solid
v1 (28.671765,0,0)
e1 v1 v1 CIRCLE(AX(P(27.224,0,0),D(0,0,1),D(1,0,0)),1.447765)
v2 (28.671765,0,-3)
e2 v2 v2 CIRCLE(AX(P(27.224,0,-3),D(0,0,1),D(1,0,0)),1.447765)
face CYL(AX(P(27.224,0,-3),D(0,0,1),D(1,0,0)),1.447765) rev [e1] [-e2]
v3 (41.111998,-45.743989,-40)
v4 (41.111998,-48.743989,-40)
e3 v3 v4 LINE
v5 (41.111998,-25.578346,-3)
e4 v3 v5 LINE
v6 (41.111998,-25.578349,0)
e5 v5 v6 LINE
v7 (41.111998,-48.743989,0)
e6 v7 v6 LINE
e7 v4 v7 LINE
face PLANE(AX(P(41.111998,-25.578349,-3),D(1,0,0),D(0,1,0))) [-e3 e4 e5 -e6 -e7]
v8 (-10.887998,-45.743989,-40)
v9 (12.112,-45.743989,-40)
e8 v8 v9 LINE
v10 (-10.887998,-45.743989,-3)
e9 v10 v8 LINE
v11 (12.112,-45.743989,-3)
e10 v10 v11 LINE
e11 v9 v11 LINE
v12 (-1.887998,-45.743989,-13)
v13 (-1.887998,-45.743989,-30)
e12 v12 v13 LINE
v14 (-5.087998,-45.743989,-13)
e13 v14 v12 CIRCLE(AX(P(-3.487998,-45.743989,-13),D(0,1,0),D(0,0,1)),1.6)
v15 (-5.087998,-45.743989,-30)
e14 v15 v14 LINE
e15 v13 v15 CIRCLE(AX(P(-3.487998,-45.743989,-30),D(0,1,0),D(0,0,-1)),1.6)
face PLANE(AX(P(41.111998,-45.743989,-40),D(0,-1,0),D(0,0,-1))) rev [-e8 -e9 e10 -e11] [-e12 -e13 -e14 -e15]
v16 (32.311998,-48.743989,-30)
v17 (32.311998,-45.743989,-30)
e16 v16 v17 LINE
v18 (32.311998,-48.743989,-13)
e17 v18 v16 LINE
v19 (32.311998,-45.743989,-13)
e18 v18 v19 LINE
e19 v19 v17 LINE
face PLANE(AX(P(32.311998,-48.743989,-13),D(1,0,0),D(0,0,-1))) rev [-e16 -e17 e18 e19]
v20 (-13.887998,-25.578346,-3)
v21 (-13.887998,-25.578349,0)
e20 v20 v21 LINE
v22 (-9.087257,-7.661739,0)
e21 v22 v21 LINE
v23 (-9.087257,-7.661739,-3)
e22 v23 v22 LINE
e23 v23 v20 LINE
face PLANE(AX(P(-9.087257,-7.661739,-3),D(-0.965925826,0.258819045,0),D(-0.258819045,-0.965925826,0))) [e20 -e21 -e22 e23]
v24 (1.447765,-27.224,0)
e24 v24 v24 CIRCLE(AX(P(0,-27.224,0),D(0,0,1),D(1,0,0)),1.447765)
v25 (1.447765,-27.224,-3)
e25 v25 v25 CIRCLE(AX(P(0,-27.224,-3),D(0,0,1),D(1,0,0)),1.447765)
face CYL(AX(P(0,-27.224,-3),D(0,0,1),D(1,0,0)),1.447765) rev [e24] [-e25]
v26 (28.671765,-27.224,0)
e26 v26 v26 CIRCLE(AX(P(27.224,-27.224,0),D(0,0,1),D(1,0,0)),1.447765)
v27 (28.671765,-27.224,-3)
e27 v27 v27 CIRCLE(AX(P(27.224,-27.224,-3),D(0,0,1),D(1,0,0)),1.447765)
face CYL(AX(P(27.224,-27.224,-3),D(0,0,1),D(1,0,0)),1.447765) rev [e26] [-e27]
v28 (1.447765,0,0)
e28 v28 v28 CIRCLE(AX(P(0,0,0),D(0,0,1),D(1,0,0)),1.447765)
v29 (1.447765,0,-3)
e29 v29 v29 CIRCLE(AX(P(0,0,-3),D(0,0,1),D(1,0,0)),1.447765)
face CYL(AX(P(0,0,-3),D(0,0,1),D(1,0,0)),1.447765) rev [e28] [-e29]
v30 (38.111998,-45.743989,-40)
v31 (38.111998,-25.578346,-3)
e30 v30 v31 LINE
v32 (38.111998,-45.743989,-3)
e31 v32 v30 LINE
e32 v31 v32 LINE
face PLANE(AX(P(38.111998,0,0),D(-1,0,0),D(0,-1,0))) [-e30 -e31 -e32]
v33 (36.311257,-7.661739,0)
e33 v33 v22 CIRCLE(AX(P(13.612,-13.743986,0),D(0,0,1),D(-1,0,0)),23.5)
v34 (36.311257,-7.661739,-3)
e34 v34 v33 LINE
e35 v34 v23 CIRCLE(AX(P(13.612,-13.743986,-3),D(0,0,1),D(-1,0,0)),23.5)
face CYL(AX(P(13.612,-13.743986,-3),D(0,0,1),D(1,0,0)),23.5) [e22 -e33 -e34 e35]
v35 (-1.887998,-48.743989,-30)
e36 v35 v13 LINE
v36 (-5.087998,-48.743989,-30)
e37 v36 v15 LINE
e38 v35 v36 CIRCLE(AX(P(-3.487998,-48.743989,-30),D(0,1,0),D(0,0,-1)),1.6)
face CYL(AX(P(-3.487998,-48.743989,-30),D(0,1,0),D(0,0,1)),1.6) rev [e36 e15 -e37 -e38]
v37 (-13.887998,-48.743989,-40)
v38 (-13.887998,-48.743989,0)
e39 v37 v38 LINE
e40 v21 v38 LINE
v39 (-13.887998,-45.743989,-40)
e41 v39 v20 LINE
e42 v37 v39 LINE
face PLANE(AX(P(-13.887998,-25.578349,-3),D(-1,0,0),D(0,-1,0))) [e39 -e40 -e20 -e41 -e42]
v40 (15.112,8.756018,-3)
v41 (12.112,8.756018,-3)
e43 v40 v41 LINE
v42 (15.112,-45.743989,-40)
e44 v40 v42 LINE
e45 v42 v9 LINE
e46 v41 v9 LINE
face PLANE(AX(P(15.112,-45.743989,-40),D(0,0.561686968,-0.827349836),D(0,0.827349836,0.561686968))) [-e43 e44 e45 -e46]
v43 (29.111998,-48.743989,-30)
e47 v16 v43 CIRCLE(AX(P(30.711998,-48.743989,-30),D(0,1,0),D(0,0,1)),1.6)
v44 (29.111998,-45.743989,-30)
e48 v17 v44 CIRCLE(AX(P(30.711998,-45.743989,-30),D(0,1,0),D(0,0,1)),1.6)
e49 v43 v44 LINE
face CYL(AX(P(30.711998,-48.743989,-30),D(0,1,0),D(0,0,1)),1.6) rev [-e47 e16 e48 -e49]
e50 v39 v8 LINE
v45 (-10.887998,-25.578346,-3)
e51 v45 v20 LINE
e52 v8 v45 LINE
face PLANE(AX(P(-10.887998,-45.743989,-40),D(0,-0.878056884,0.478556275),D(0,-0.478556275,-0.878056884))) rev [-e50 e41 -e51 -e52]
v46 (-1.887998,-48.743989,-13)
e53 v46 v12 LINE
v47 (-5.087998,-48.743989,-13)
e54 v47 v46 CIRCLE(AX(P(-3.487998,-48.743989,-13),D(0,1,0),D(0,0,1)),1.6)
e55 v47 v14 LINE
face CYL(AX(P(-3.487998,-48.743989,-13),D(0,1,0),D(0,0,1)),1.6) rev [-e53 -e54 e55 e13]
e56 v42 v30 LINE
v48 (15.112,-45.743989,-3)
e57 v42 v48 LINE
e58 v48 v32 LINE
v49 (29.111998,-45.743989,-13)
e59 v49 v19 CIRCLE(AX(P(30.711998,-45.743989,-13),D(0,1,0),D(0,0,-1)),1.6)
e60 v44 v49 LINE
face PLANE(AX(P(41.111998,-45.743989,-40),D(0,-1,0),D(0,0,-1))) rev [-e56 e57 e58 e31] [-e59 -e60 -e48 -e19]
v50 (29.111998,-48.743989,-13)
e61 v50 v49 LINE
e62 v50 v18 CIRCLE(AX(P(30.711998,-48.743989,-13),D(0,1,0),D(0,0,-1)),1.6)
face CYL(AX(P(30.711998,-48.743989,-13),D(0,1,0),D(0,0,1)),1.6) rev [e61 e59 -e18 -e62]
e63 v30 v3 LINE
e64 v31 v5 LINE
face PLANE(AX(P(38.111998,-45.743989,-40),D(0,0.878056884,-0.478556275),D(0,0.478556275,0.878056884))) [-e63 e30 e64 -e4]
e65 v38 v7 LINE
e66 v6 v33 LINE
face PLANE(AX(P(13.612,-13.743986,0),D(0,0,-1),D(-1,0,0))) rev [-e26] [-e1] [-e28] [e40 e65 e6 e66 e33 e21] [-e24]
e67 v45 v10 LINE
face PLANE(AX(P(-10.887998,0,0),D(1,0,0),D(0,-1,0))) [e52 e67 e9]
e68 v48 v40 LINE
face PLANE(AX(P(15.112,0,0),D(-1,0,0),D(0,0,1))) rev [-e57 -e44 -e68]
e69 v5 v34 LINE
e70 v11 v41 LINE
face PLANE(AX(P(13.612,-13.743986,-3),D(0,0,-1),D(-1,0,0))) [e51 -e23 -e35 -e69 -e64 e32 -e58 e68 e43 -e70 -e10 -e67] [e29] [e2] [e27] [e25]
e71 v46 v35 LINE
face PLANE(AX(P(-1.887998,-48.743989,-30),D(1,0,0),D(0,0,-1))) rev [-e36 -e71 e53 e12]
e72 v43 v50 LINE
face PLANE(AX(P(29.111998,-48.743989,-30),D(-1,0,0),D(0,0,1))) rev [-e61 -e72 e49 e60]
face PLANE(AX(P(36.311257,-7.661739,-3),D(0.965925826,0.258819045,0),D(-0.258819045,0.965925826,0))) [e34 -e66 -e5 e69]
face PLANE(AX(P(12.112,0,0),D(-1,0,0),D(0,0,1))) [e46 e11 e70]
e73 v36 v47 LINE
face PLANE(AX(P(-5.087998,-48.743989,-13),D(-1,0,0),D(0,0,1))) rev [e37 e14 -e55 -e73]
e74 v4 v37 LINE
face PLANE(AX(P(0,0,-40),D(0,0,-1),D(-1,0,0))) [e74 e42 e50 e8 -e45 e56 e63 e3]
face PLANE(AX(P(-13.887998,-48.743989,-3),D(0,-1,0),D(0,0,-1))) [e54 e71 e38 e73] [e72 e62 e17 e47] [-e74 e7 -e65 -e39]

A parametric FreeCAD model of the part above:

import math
import FreeCAD as App
import Part
import Sketcher
from FreeCAD import Vector
Q = App.Units.Quantity

doc = App.newDocument("Part")
params = doc.addObject("Spreadsheet::Sheet", "Params")
for row, (alias, value) in enumerate([
    ("sketch1_radius", "23.5 mm"),
    ("pad1_length", "3 mm"),
    ("sketch2_height", "3 mm"),
    ("pad2_length", "37 mm"),
    ("sketch3_radius", "1.6 mm"),
    ("sketch3_height", "17 mm"),
    ("pocket1_length", "3 mm"),
    ("sketch4_height", "37 mm"),
    ("pad3_length", "3 mm"),
    ("sketch5_height", "37 mm"),
    ("pad4_length", "1.5 mm"),
    ("pad4_length2", "1.5 mm"),
], start=1):
    params.set(f"A{row}", alias)
    params.set(f"B{row}", "=" + value)
    params.setAlias(f"B{row}", alias)

body = doc.addObject("PartDesign::Body", "Body")

# Sketch on XY plane
sketch1 = body.newObject("Sketcher::SketchObject", "Sketch")
sketch1.AttachmentSupport = (doc.getObject("XY_Plane"), [""])
sketch1.MapMode = "FlatFace"
sketch1.addGeometry([
    Part.LineSegment(Vector(-13.887998, -25.578349, 0), Vector(-13.887998, -48.743989, 0)),  # 0
    Part.LineSegment(Vector(-13.887998, -48.743989, 0), Vector(41.111998, -48.743989, 0)),  # 1
    Part.LineSegment(Vector(41.111998, -48.743989, 0), Vector(41.111998, -25.578349, 0)),  # 2
    Part.LineSegment(Vector(41.111998, -25.578349, 0), Vector(36.311257, -7.661739, 0)),  # 3
    Part.ArcOfCircle(Part.Circle(Vector(13.612, -13.743986, 0), Vector(0, 0, 1), 23.5), math.radians(15), math.radians(165)),  # 4
    Part.LineSegment(Vector(-9.087257, -7.661739, 0), Vector(-13.887998, -25.578349, 0)),  # 5
    Part.Circle(Vector(0, -27.224, 0), Vector(0, 0, 1), 1.447765),  # 6
    Part.Circle(Vector(27.224, -27.224, 0), Vector(0, 0, 1), 1.447765),  # 7
    Part.Circle(Vector(0, 0, 0), Vector(0, 0, 1), 1.447765),  # 8
    Part.Circle(Vector(27.224, 0, 0), Vector(0, 0, 1), 1.447765),  # 9
], False)
sketch1.addConstraint([
    Sketcher.Constraint("Coincident", 0, 2, 1, 1),
    Sketcher.Constraint("Coincident", 1, 2, 2, 1),
    Sketcher.Constraint("Coincident", 2, 2, 3, 1),
    Sketcher.Constraint("Tangent", 3, 2, 4, 1),
    Sketcher.Constraint("Tangent", 4, 2, 5, 1),
    Sketcher.Constraint("Coincident", 5, 2, 0, 1),
    Sketcher.Constraint("Vertical", 0),
    Sketcher.Constraint("Horizontal", 1),
    Sketcher.Constraint("Vertical", 2),
    Sketcher.Constraint("Coincident", 8, 3, -1, 1),
    Sketcher.Constraint("Equal", 6, 7),
    Sketcher.Constraint("Equal", 7, 8),
    Sketcher.Constraint("Equal", 8, 9),
    Sketcher.Constraint("PointOnObject", 6, 3, -2),
    Sketcher.Constraint("PointOnObject", 9, 3, -1),
    Sketcher.Constraint("Horizontal", 6, 3, 7, 3),
    Sketcher.Constraint("Horizontal", 3, 2, 4, 2),
    Sketcher.Constraint("Horizontal", 2, 2, 5, 2),
    Sketcher.Constraint("Vertical", 7, 3, 9, 3),
    Sketcher.Constraint("Radius", 4, 23.5),
    Sketcher.Constraint("Angle", 3, Q("105 deg")),
    Sketcher.Constraint("DistanceX", 0, 2, 4, 3, 27.499998),
    Sketcher.Constraint("Diameter", 6, 2.89553),
    Sketcher.Constraint("DistanceX", -1, 1, 4, 3, 13.612),
    Sketcher.Constraint("DistanceY", 6, 3, -1, 1, 27.224),
    Sketcher.Constraint("DistanceX", -1, 1, 7, 3, 27.224),
    Sketcher.Constraint("DistanceY", 0, 2, 0, 1, 23.16564),
    Sketcher.Constraint("DistanceY", 0, 2, -1, 1, 48.743989),
])
sketch1.setExpression("Constraints[19]", "Params.sketch1_radius")
pad1 = body.newObject("PartDesign::Pad", "Pad")
pad1.Profile = sketch1
pad1.setExpression("Length", "Params.pad1_length")
pad1.Reversed = True

# Sketch on XY plane
sketch2 = body.newObject("Sketcher::SketchObject", "Sketch001")
sketch2.AttachmentSupport = (doc.getObject("XY_Plane"), [""])
sketch2.MapMode = "FlatFace"
sketch2.AttachmentOffset = App.Placement(Vector(0, 0, -3), App.Rotation())
sketch2.addGeometry([
    Part.LineSegment(Vector(41.111998, -45.743989, 0), Vector(41.111998, -48.743989, 0)),
    Part.LineSegment(Vector(41.111998, -48.743989, 0), Vector(-13.887998, -48.743989, 0)),
    Part.LineSegment(Vector(-13.887998, -48.743989, 0), Vector(-13.887998, -45.743989, 0)),
    Part.LineSegment(Vector(-13.887998, -45.743989, 0), Vector(41.111998, -45.743989, 0)),
], False)
sketch2.addConstraint([
    Sketcher.Constraint("Coincident", 0, 2, 1, 1),
    Sketcher.Constraint("Coincident", 1, 2, 2, 1),
    Sketcher.Constraint("Coincident", 2, 2, 3, 1),
    Sketcher.Constraint("Coincident", 3, 2, 0, 1),
    Sketcher.Constraint("Vertical", 0),
    Sketcher.Constraint("Horizontal", 1),
    Sketcher.Constraint("Vertical", 2),
    Sketcher.Constraint("Horizontal", 3),
    Sketcher.Constraint("DistanceY", 0, 2, 0, 1, 3.0),
    Sketcher.Constraint("DistanceX", -1, 1, 0, 2, 41.111998),
    Sketcher.Constraint("DistanceX", 1, 2, -1, 1, 13.887998),
    Sketcher.Constraint("DistanceY", 0, 2, -1, 1, 48.743989),
])
sketch2.setExpression("Constraints[8]", "Params.sketch2_height")
pad2 = body.newObject("PartDesign::Pad", "Pad001")
pad2.Profile = sketch2
pad2.setExpression("Length", "Params.pad2_length")
pad2.Reversed = True

# Sketch on XZ plane
sketch3 = body.newObject("Sketcher::SketchObject", "Sketch002")
sketch3.AttachmentSupport = (doc.getObject("XZ_Plane"), [""])
sketch3.MapMode = "FlatFace"
sketch3.AttachmentOffset = App.Placement(Vector(0, 0, 45.743989), App.Rotation())
sketch3.addGeometry([
    Part.LineSegment(Vector(32.311998, -13, 0), Vector(32.311998, -30, 0)),  # 0
    Part.ArcOfCircle(Part.Circle(Vector(30.711998, -30, 0), Vector(0, 0, 1), 1.6), math.radians(180), math.radians(360)),  # 1
    Part.LineSegment(Vector(29.111998, -30, 0), Vector(29.111998, -13, 0)),  # 2
    Part.ArcOfCircle(Part.Circle(Vector(30.711998, -13, 0), Vector(0, 0, 1), 1.6), math.radians(0), math.radians(180)),  # 3
    Part.LineSegment(Vector(-1.887998, -13, 0), Vector(-1.887998, -30, 0)),  # 4
    Part.ArcOfCircle(Part.Circle(Vector(-3.487998, -30, 0), Vector(0, 0, 1), 1.6), math.radians(180), math.radians(360)),  # 5
    Part.LineSegment(Vector(-5.087998, -30, 0), Vector(-5.087998, -13, 0)),  # 6
    Part.ArcOfCircle(Part.Circle(Vector(-3.487998, -13, 0), Vector(0, 0, 1), 1.6), math.radians(0), math.radians(180)),  # 7
], False)
sketch3.addConstraint([
    Sketcher.Constraint("Tangent", 0, 2, 1, 2),
    Sketcher.Constraint("Tangent", 1, 1, 2, 1),
    Sketcher.Constraint("Tangent", 2, 2, 3, 2),
    Sketcher.Constraint("Tangent", 3, 1, 0, 1),
    Sketcher.Constraint("Tangent", 4, 2, 5, 2),
    Sketcher.Constraint("Tangent", 5, 1, 6, 1),
    Sketcher.Constraint("Tangent", 6, 2, 7, 2),
    Sketcher.Constraint("Tangent", 7, 1, 4, 1),
    Sketcher.Constraint("Vertical", 0),
    Sketcher.Constraint("Vertical", 2),
    Sketcher.Constraint("Vertical", 4),
    Sketcher.Constraint("Vertical", 6),
    Sketcher.Constraint("Equal", 3, 5),
    Sketcher.Constraint("Horizontal", 1, 3, 5, 3),
    Sketcher.Constraint("Horizontal", 3, 3, 7, 3),
    Sketcher.Constraint("Radius", 1, 1.6),
    Sketcher.Constraint("DistanceY", 0, 2, 0, 1, 17.0),
    Sketcher.Constraint("DistanceY", 1, 3, -1, 1, 30.0),
    Sketcher.Constraint("DistanceX", -1, 1, 1, 3, 30.711998),
    Sketcher.Constraint("DistanceX", 5, 3, -1, 1, 3.487998),
])
sketch3.setExpression("Constraints[15]", "Params.sketch3_radius")
sketch3.setExpression("Constraints[16]", "Params.sketch3_height")
pocket1 = body.newObject("PartDesign::Pocket", "Pocket")
pocket1.Profile = sketch3
pocket1.setExpression("Length", "Params.pocket1_length")
pocket1.Reversed = True

# Sketch on YZ plane
sketch4 = body.newObject("Sketcher::SketchObject", "Sketch003")
sketch4.AttachmentSupport = (doc.getObject("YZ_Plane"), [""])
sketch4.MapMode = "FlatFace"
sketch4.AttachmentOffset = App.Placement(Vector(0, 0, 41.111998), App.Rotation())
sketch4.addGeometry([
    Part.LineSegment(Vector(-45.743989, -40, 0), Vector(-25.578346, -3, 0)),
    Part.LineSegment(Vector(-25.578346, -3, 0), Vector(-45.743989, -3, 0)),
    Part.LineSegment(Vector(-45.743989, -3, 0), Vector(-45.743989, -40, 0)),
], False)
sketch4.addConstraint([
    Sketcher.Constraint("Coincident", 0, 2, 1, 1),
    Sketcher.Constraint("Coincident", 1, 2, 2, 1),
    Sketcher.Constraint("Coincident", 2, 2, 0, 1),
    Sketcher.Constraint("Horizontal", 1),
    Sketcher.Constraint("Vertical", 2),
    Sketcher.Constraint("DistanceY", 2, 2, 2, 1, 37.0),
    Sketcher.Constraint("DistanceY", 0, 2, -1, 1, 3.0),
    Sketcher.Constraint("Distance", 0, 42.1385),
    Sketcher.Constraint("DistanceX", 1, 2, -1, 1, 45.743989),
])
sketch4.setExpression("Constraints[5]", "Params.sketch4_height")
pad3 = body.newObject("PartDesign::Pad", "Pad002")
pad3.Profile = sketch4
pad3.setExpression("Length", "Params.pad3_length")
pad3.Reversed = True

# Sketch on YZ plane
sketch5 = body.newObject("Sketcher::SketchObject", "Sketch004")
sketch5.AttachmentSupport = (doc.getObject("YZ_Plane"), [""])
sketch5.MapMode = "FlatFace"
sketch5.AttachmentOffset = App.Placement(Vector(0, 0, 13.612), App.Rotation())
sketch5.addGeometry([
    Part.LineSegment(Vector(8.756018, -3, 0), Vector(-45.743989, -40, 0)),
    Part.LineSegment(Vector(-45.743989, -40, 0), Vector(-45.743989, -3, 0)),
    Part.LineSegment(Vector(-45.743989, -3, 0), Vector(8.756018, -3, 0)),
], False)
sketch5.addConstraint([
    Sketcher.Constraint("Coincident", 0, 2, 1, 1),
    Sketcher.Constraint("Coincident", 1, 2, 2, 1),
    Sketcher.Constraint("Coincident", 2, 2, 0, 1),
    Sketcher.Constraint("Vertical", 1),
    Sketcher.Constraint("Horizontal", 2),
    Sketcher.Constraint("DistanceY", 1, 1, 1, 2, 37.0),
    Sketcher.Constraint("DistanceY", 0, 2, -1, 1, 40.0),
    Sketcher.Constraint("Distance", 0, 65.87299),
    Sketcher.Constraint("DistanceX", 0, 2, -1, 1, 45.743989),
])
sketch5.setExpression("Constraints[5]", "Params.sketch5_height")
pad4 = body.newObject("PartDesign::Pad", "Pad003")
pad4.Profile = sketch5
pad4.Type = "TwoLengths"
pad4.setExpression("Length", "Params.pad4_length")
pad4.setExpression("Length2", "Params.pad4_length2")
pad4.Reversed = True
doc.recompute()

datumplane = body.newObject("PartDesign::Plane", "DatumPlane")
datumplane.AttachmentSupport = (doc.getObject("YZ_Plane"), [""])
datumplane.MapMode = "FlatFace"
datumplane.AttachmentOffset = App.Placement(Vector(0, 0, 13.612), App.Rotation())
mirrored = body.newObject("PartDesign::Mirrored", "Mirrored")
mirrored.Originals = [pad3]
mirrored.MirrorPlane = (datumplane, [""])
body.Tip = mirrored

doc.recompute()
